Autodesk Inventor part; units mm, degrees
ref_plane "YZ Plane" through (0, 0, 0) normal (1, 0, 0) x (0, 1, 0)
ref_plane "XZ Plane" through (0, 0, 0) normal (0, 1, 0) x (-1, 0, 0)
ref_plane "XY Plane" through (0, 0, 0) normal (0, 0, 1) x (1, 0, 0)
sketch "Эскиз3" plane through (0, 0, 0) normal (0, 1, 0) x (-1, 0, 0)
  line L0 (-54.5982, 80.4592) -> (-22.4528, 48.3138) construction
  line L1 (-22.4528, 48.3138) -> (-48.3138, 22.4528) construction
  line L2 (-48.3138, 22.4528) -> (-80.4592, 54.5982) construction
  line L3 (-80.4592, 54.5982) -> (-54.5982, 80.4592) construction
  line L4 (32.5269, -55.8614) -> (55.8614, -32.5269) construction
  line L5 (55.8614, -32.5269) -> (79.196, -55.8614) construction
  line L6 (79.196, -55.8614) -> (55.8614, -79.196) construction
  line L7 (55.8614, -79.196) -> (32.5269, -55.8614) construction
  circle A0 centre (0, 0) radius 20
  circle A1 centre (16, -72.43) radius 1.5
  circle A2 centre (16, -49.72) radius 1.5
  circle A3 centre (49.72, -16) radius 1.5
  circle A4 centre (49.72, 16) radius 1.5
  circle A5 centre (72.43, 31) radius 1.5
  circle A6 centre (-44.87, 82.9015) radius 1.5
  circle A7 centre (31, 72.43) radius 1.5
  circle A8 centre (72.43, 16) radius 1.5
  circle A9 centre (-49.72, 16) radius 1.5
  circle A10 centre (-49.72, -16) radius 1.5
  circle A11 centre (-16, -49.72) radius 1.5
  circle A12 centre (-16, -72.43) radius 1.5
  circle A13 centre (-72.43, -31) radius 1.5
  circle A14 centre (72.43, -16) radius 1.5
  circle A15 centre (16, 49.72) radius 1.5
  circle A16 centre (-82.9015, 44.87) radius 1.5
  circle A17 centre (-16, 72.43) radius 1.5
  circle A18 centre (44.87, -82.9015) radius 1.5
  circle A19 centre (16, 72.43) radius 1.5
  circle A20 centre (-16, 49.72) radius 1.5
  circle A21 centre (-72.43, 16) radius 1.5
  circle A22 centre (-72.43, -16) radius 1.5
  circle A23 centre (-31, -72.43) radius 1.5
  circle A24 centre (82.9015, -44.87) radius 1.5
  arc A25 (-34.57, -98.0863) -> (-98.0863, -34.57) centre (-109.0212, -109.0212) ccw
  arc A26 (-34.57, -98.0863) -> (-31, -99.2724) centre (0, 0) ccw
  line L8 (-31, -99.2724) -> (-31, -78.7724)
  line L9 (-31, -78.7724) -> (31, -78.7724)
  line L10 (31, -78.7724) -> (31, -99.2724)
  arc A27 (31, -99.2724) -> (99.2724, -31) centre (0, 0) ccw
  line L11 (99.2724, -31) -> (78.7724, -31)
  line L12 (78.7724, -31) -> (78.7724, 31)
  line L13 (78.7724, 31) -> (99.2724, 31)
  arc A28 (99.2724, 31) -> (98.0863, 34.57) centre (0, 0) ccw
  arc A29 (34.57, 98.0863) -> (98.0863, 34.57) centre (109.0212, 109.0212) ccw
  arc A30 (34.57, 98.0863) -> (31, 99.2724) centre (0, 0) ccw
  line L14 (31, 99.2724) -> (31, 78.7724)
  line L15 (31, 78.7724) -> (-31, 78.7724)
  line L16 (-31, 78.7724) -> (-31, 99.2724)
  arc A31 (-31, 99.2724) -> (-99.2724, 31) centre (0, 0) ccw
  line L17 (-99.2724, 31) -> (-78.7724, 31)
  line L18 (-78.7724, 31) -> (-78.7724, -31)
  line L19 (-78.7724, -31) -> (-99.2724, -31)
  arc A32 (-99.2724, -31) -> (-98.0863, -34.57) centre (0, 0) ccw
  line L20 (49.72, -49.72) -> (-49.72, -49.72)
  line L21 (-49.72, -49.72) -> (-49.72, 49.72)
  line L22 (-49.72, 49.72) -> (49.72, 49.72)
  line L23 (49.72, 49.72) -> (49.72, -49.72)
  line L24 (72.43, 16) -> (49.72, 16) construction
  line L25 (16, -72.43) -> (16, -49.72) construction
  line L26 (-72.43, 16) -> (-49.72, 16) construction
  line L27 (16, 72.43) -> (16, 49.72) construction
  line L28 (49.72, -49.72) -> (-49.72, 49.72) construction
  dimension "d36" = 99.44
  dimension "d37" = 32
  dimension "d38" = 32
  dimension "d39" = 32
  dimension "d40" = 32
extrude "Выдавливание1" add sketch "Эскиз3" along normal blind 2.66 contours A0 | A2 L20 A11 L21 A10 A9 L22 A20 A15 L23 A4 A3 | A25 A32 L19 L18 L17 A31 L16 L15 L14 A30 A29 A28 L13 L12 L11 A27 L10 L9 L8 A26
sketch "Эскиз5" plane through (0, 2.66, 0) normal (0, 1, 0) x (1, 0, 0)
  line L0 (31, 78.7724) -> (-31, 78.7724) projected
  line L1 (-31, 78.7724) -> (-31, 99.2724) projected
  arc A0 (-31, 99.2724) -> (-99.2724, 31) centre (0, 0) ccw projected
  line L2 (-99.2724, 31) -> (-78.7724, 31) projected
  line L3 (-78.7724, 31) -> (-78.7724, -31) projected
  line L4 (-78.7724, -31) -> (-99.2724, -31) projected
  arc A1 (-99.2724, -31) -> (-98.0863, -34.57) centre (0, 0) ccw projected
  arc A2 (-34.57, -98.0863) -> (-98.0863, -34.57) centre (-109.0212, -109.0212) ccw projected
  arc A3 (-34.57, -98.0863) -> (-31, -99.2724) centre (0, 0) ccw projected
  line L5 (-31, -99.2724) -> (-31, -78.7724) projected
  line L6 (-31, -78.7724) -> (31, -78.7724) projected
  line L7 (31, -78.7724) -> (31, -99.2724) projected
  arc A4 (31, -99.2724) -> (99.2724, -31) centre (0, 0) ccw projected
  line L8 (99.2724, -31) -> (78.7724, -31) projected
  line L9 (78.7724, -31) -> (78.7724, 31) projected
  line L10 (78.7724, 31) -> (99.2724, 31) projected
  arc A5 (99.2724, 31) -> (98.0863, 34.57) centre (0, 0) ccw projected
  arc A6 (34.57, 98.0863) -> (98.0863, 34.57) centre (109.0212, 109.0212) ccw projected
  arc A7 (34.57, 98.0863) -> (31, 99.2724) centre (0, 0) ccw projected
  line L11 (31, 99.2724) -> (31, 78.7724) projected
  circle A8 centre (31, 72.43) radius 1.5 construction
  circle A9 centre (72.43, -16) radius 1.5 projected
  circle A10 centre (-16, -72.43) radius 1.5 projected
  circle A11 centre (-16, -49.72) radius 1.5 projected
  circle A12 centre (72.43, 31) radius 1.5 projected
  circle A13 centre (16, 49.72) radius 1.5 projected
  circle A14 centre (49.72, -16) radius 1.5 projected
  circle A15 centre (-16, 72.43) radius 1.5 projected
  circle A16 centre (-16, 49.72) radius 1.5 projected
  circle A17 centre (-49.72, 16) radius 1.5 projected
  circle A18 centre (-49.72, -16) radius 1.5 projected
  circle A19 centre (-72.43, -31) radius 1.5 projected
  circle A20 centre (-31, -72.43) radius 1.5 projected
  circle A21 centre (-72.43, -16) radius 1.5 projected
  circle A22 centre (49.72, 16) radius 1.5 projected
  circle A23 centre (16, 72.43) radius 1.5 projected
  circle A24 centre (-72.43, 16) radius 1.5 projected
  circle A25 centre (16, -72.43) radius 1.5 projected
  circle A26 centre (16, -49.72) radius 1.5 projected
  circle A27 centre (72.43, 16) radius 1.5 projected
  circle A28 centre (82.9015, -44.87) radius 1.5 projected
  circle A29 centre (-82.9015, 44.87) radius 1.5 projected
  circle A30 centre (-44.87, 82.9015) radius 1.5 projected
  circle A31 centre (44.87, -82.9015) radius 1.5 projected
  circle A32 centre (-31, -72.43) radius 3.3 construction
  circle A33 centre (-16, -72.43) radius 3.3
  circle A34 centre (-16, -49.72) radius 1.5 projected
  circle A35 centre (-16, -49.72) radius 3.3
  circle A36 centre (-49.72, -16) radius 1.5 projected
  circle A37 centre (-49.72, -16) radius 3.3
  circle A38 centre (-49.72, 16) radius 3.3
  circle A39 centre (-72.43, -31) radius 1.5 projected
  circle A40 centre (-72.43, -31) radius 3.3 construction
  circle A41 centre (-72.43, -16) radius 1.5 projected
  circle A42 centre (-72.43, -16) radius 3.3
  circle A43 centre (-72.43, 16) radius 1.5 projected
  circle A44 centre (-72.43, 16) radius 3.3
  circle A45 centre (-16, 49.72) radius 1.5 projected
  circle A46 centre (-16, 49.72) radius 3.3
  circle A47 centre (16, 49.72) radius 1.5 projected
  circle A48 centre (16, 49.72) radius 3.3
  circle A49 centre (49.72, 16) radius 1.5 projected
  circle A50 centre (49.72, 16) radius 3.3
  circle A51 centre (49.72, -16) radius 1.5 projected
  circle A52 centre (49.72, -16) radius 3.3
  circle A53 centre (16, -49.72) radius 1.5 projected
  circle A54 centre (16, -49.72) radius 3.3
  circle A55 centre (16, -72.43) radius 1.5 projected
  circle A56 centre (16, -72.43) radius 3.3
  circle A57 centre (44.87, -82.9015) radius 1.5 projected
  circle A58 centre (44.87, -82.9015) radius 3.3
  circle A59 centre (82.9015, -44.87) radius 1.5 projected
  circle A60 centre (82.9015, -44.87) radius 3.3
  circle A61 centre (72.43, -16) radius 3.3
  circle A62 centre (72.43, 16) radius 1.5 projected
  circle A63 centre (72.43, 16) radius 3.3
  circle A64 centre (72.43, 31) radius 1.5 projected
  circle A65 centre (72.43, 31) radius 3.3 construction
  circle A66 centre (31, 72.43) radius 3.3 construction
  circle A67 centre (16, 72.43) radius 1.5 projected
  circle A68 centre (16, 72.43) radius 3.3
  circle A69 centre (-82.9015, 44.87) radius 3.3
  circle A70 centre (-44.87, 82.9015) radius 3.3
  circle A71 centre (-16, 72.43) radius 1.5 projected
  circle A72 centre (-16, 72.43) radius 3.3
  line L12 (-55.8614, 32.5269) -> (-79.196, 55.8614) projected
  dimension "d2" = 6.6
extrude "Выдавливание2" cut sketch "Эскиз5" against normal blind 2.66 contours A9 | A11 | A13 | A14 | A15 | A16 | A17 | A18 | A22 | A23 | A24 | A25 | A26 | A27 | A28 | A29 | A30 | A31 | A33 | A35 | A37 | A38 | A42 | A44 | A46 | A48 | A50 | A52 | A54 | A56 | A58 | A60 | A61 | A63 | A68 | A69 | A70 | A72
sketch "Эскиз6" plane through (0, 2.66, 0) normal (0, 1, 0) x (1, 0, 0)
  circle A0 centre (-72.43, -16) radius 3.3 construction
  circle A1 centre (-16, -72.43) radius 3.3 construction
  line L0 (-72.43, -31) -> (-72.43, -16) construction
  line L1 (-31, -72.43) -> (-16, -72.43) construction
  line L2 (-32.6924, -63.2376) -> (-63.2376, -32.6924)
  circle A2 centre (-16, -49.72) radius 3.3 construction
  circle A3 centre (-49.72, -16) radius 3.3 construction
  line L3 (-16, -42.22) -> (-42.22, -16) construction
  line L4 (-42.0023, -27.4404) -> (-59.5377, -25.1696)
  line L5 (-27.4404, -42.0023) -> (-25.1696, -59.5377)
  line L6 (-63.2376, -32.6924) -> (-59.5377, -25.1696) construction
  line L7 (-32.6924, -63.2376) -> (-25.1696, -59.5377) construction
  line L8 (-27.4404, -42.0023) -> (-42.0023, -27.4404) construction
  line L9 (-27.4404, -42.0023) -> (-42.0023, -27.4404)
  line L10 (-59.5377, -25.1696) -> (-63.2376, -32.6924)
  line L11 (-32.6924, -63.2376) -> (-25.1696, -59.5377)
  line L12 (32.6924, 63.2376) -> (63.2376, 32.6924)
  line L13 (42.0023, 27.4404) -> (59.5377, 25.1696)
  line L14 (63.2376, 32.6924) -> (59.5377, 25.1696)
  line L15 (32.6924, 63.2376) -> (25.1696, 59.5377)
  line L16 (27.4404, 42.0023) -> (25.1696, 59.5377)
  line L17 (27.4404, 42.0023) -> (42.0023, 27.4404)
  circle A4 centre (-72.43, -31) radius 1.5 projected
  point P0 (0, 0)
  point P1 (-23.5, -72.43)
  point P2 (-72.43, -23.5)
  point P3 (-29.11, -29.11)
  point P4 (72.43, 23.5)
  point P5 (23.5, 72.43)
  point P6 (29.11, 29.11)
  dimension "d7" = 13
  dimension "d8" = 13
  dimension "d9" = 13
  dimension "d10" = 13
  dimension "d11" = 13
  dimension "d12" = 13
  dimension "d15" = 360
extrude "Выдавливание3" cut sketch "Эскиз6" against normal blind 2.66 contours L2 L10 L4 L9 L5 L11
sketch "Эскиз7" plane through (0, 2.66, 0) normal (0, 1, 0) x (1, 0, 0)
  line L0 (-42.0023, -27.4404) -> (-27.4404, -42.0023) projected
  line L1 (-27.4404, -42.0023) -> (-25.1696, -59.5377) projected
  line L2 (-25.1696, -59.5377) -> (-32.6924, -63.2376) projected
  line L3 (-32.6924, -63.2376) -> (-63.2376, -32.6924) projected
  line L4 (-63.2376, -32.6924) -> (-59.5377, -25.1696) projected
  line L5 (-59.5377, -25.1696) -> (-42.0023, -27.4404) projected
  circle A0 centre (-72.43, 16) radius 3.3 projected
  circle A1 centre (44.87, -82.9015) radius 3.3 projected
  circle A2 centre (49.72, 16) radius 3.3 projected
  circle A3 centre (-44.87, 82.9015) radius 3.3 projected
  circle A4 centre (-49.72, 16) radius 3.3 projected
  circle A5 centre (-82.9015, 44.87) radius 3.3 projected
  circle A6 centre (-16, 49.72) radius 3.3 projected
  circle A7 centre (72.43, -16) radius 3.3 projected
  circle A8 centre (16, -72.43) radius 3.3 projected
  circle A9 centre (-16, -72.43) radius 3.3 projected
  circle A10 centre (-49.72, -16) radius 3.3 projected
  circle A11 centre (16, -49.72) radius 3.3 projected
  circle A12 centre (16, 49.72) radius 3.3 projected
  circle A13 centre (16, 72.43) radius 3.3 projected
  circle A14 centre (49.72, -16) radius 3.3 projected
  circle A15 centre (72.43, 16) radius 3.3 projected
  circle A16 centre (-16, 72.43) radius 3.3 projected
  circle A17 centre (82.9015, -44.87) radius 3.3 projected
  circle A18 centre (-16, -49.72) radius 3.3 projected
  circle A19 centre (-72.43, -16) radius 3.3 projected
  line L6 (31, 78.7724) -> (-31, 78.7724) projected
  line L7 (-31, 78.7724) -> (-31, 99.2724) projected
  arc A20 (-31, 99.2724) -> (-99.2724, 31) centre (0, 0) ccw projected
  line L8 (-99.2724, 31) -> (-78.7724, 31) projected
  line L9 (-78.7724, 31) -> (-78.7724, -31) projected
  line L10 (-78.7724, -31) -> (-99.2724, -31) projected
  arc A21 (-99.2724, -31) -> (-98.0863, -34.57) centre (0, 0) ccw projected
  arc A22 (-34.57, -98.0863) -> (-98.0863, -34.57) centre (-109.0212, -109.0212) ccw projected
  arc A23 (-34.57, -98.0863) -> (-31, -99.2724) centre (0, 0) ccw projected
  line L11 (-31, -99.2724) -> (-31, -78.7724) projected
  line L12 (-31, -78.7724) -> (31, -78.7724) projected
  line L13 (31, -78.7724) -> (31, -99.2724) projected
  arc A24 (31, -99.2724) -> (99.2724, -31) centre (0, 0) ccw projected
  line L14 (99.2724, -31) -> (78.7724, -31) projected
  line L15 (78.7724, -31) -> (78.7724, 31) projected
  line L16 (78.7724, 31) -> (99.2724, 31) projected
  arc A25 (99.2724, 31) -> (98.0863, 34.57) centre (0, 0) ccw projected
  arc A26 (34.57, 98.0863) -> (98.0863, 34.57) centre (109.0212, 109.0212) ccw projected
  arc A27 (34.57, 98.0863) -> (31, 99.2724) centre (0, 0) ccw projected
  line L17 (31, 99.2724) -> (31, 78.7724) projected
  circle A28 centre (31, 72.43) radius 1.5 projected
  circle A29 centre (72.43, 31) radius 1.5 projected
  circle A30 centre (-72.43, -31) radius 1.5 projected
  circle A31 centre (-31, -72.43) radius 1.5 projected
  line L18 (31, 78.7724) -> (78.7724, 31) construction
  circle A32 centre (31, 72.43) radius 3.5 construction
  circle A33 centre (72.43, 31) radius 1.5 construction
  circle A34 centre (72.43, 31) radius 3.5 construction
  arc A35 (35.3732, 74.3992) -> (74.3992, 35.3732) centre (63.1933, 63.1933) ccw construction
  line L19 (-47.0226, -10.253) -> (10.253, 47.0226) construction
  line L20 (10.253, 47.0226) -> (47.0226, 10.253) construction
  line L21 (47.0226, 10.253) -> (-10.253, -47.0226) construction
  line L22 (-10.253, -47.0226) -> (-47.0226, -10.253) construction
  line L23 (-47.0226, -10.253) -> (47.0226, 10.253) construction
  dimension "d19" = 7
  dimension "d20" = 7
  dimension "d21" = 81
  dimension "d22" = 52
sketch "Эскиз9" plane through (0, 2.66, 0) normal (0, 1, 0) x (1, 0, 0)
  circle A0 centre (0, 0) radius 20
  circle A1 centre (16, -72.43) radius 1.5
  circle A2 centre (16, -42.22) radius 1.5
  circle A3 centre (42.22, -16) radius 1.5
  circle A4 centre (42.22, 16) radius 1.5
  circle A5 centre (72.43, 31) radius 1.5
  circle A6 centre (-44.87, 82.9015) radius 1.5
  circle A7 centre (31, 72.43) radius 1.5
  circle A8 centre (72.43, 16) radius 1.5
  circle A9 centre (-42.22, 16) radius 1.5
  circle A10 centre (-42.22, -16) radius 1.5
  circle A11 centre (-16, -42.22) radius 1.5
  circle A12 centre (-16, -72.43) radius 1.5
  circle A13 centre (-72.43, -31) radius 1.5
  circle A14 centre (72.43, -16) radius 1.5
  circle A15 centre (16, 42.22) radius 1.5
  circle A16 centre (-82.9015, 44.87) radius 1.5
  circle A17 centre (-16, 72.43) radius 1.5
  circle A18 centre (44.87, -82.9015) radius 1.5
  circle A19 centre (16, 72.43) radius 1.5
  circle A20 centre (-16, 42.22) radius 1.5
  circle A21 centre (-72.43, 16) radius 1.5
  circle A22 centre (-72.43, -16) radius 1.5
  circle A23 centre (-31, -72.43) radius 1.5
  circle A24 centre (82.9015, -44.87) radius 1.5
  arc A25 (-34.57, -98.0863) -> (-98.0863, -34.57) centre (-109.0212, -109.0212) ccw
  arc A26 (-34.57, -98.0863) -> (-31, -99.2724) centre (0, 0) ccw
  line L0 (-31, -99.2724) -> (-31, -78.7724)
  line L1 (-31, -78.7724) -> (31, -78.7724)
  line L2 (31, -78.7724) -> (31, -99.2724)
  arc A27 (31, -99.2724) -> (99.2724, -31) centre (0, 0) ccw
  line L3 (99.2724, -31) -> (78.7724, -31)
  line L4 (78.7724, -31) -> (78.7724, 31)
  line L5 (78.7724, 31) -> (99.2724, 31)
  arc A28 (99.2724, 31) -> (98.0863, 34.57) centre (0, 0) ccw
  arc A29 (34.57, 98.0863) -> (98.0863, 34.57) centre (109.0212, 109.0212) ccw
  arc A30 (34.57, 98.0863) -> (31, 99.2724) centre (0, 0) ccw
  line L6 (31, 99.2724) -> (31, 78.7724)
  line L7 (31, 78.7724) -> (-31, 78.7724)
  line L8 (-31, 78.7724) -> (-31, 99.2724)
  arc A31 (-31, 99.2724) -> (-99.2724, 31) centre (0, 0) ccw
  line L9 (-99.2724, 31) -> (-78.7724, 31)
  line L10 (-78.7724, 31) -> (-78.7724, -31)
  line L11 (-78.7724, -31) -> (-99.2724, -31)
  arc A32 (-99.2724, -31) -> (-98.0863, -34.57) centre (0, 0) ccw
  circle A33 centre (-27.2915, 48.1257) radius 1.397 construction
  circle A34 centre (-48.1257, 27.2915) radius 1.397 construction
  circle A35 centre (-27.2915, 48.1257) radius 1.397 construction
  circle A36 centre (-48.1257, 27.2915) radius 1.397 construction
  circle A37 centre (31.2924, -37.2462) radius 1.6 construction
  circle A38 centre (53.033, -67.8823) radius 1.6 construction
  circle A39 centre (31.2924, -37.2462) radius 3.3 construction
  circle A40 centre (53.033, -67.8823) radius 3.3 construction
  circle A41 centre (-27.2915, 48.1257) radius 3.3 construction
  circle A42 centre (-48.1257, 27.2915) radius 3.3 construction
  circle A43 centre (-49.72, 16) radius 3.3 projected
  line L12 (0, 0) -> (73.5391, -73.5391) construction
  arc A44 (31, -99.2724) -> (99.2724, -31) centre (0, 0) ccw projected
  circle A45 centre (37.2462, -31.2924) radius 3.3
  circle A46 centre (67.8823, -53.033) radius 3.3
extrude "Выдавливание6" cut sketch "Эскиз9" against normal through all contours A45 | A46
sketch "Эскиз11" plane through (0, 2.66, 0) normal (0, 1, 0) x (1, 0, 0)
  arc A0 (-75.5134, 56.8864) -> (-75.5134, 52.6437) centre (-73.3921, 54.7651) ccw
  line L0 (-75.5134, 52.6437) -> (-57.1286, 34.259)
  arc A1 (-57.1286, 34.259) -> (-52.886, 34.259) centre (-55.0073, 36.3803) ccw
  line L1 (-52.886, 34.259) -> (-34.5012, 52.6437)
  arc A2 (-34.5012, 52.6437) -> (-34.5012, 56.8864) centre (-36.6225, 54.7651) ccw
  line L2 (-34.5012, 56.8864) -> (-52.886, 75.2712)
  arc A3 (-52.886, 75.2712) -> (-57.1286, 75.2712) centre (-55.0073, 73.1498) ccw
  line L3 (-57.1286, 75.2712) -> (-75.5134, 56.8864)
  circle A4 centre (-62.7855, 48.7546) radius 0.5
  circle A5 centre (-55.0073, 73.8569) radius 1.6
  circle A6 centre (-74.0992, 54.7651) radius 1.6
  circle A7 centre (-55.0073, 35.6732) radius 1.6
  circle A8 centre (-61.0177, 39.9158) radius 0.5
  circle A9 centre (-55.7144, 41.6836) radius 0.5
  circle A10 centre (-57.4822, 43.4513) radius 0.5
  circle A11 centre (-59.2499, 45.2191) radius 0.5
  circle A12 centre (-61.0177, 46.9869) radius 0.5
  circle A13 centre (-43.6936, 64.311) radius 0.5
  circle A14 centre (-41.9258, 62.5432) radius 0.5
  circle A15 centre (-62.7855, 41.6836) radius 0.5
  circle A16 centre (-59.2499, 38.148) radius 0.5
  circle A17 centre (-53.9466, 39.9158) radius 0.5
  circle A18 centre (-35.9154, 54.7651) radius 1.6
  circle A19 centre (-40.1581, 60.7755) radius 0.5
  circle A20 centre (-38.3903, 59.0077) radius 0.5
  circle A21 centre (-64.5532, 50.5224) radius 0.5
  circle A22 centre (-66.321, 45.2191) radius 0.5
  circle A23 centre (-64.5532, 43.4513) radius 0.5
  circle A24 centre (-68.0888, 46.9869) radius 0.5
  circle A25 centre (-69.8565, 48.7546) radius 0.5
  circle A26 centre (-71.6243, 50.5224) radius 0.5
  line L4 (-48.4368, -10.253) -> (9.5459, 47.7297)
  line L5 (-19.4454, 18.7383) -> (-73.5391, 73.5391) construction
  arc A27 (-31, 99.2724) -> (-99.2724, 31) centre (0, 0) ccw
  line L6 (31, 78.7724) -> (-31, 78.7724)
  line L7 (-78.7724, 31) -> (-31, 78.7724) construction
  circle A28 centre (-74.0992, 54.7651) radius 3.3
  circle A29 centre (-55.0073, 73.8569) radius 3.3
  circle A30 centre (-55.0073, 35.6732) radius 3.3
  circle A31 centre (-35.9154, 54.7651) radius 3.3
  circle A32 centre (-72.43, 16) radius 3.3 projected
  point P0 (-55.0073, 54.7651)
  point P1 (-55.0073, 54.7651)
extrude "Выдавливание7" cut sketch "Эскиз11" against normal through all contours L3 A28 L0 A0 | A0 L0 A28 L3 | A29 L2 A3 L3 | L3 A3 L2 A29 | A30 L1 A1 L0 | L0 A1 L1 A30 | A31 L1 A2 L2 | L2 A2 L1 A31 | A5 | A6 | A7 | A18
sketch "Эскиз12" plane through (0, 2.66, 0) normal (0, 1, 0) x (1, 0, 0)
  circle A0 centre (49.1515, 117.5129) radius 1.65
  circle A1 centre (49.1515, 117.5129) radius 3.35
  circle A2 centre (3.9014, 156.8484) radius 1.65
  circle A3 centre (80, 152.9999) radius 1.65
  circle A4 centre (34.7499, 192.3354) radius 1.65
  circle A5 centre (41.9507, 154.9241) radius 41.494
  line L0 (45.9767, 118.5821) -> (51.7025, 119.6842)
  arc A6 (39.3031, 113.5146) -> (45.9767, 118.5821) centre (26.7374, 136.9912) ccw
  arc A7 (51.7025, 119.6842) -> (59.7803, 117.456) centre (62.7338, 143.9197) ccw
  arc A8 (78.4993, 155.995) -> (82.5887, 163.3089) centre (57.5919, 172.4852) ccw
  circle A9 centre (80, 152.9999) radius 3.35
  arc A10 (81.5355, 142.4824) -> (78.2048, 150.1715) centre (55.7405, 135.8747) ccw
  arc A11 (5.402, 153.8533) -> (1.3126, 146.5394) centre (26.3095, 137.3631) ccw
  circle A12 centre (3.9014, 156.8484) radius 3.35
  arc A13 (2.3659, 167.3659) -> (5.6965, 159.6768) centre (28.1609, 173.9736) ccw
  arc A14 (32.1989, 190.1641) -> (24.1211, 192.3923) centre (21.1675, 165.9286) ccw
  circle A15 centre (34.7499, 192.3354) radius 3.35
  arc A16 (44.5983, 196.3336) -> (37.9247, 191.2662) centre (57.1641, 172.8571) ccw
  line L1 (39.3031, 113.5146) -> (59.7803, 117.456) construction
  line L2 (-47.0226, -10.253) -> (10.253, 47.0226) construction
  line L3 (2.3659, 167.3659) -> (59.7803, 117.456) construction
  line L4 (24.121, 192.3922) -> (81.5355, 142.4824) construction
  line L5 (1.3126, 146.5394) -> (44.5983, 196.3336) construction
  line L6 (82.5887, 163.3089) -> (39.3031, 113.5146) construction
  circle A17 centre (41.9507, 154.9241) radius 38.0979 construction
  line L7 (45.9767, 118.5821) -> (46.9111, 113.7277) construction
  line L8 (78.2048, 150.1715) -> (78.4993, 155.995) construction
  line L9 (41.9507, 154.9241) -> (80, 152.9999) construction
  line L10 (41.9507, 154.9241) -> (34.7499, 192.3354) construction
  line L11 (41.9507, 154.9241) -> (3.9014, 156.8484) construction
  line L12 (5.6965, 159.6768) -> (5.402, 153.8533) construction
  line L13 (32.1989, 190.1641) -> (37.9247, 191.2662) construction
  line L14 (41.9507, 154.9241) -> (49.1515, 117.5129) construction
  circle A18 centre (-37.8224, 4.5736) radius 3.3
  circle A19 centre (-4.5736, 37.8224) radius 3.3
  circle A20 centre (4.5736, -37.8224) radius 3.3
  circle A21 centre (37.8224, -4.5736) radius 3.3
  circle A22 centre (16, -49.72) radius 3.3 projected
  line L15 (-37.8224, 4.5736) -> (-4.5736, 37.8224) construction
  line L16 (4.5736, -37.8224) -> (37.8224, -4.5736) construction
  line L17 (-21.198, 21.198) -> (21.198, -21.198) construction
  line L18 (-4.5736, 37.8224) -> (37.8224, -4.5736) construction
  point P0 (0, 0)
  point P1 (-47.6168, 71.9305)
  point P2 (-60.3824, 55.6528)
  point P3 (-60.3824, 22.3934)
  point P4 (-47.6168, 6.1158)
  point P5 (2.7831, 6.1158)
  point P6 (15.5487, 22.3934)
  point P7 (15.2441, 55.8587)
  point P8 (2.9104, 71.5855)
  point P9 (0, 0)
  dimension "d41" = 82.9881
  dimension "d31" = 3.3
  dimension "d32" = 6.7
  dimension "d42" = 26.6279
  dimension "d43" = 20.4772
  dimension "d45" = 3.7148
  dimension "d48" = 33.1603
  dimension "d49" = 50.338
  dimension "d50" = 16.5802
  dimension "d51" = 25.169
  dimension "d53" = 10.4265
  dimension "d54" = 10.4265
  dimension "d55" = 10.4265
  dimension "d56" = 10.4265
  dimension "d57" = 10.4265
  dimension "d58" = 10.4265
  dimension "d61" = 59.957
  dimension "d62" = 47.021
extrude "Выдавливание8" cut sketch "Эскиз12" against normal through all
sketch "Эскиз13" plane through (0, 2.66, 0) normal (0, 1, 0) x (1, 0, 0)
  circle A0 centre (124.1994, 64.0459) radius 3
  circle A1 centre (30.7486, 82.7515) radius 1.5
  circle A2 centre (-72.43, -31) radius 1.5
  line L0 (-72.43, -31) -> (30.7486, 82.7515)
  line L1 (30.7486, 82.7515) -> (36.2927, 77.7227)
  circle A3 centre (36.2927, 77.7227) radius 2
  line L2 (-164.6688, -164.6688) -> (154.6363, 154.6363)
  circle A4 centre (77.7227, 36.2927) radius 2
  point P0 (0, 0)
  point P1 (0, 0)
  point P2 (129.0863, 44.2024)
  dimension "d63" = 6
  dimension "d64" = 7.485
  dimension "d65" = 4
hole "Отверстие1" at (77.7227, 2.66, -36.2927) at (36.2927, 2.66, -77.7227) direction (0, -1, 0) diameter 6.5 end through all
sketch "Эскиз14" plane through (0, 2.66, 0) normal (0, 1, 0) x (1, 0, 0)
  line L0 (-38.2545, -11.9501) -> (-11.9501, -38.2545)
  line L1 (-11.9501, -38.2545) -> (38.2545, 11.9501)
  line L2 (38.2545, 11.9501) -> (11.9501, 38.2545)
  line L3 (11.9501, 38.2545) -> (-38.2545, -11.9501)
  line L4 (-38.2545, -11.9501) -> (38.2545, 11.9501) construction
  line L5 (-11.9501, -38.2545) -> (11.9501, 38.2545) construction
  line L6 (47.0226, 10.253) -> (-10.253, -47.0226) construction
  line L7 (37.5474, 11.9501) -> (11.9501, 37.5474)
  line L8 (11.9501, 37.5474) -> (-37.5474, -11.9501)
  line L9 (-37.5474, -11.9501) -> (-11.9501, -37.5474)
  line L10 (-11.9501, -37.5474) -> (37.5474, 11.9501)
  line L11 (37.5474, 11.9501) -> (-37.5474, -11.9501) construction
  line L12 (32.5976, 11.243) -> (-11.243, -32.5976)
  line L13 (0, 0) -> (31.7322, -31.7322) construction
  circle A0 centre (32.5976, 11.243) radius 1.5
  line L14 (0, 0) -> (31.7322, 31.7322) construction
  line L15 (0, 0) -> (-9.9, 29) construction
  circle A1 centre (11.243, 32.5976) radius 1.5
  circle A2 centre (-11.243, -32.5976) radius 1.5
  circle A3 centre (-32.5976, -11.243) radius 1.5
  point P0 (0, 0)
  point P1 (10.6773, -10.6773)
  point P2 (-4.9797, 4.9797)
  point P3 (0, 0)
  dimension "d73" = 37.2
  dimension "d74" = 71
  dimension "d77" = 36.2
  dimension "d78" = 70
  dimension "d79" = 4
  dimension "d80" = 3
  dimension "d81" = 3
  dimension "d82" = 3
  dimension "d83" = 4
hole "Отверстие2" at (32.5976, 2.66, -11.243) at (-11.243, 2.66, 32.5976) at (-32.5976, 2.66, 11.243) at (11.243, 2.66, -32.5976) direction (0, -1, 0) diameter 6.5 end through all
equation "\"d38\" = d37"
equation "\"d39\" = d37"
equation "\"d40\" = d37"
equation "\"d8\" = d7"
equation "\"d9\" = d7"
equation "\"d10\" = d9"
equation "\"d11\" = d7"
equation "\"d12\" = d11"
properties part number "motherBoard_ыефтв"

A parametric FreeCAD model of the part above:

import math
import FreeCAD as App
import Part
import Sketcher
Q = App.Units.Quantity


def add_polygon(sketch, points):
    """Adds a closed chain of lines whose ends are joined by coincident constraints."""
    first, n = sketch.GeometryCount, len(points)
    for a, b in zip(points, points[1:] + points[:1]):
        sketch.addGeometry(Part.LineSegment(App.Vector(*a, 0), App.Vector(*b, 0)), False)
    for i in range(n):
        sketch.addConstraint(Sketcher.Constraint("Coincident", first + i, 2, first + (i + 1) % n, 1))

doc = App.newDocument("Part")
body = doc.addObject("PartDesign::Body", "Body")

# Sketch on XZ plane
sketch1 = body.newObject("Sketcher::SketchObject", "Sketch")
sketch1.AttachmentSupport = (doc.getObject("XZ_Plane"), [""])
sketch1.MapMode = "FlatFace"
sketch1.addGeometry(Part.ArcOfCircle(Part.Circle(App.Vector(109.0212, -109.0212, 0), App.Vector(0, 0, 1), 75.249938), math.radians(98.355486), math.radians(171.644514)), False)
sketch1.addGeometry(Part.ArcOfCircle(Part.Circle(App.Vector(-0.010732, 0.031353, 0), App.Vector(0, 0, 1), 104.033172), math.radians(-72.657377), math.radians(-70.585427)), False)
sketch1.addGeometry(Part.LineSegment(App.Vector(31, -99.2724, 0), App.Vector(31, -78.7724, 0)), False)
sketch1.addGeometry(Part.LineSegment(App.Vector(31, -78.7724, 0), App.Vector(-31, -78.7724, 0)), False)
sketch1.addGeometry(Part.LineSegment(App.Vector(-31, -78.7724, 0), App.Vector(-31, -99.2724, 0)), False)
sketch1.addGeometry(Part.ArcOfCircle(Part.Circle(App.Vector(0, 0, 0), App.Vector(0, 0, 1), 104.000045), math.radians(-162.657873), math.radians(-107.342127)), False)
sketch1.addGeometry(Part.LineSegment(App.Vector(-99.2724, -31, 0), App.Vector(-78.7724, -31, 0)), False)
sketch1.addGeometry(Part.LineSegment(App.Vector(-78.7724, -31, 0), App.Vector(-78.7724, 31, 0)), False)
sketch1.addGeometry(Part.LineSegment(App.Vector(-78.7724, 31, 0), App.Vector(-99.2724, 31, 0)), False)
sketch1.addGeometry(Part.ArcOfCircle(Part.Circle(App.Vector(-0.031522, 0.010157, 0), App.Vector(0, 0, 1), 103.966928), math.radians(160.584767), math.radians(162.658038)), False)
sketch1.addGeometry(Part.ArcOfCircle(Part.Circle(App.Vector(-109.0212, 109.0212, 0), App.Vector(0, 0, 1), 75.249938), math.radians(-81.644514), math.radians(-8.355486)), False)
sketch1.addGeometry(Part.ArcOfCircle(Part.Circle(App.Vector(0.010732, -0.031353, 0), App.Vector(0, 0, 1), 104.033172), math.radians(107.342623), math.radians(109.414573)), False)
sketch1.addGeometry(Part.LineSegment(App.Vector(-31, 99.2724, 0), App.Vector(-31, 78.7724, 0)), False)
sketch1.addGeometry(Part.LineSegment(App.Vector(-31, 78.7724, 0), App.Vector(31, 78.7724, 0)), False)
sketch1.addGeometry(Part.LineSegment(App.Vector(31, 78.7724, 0), App.Vector(31, 99.2724, 0)), False)
sketch1.addGeometry(Part.ArcOfCircle(Part.Circle(App.Vector(0, 0, 0), App.Vector(0, 0, 1), 104.000045), math.radians(17.342127), math.radians(72.657873)), False)
sketch1.addGeometry(Part.LineSegment(App.Vector(99.2724, 31, 0), App.Vector(78.7724, 31, 0)), False)
sketch1.addGeometry(Part.LineSegment(App.Vector(78.7724, 31, 0), App.Vector(78.7724, -31, 0)), False)
sketch1.addGeometry(Part.LineSegment(App.Vector(78.7724, -31, 0), App.Vector(99.2724, -31, 0)), False)
sketch1.addGeometry(Part.ArcOfCircle(Part.Circle(App.Vector(0.031522, -0.010157, 0), App.Vector(0, 0, 1), 103.966928), math.radians(-19.415233), math.radians(-17.341962)), False)
sketch1.addGeometry(Part.Circle(App.Vector(-16, -49.72, 0), App.Vector(0, 0, 1), 1.5), False)
sketch1.addGeometry(Part.Circle(App.Vector(16, -49.72, 0), App.Vector(0, 0, 1), 1.5), False)
sketch1.addGeometry(Part.Circle(App.Vector(49.72, -16, 0), App.Vector(0, 0, 1), 1.5), False)
sketch1.addGeometry(Part.Circle(App.Vector(49.72, 16, 0), App.Vector(0, 0, 1), 1.5), False)
sketch1.addGeometry(Part.Circle(App.Vector(16, 49.72, 0), App.Vector(0, 0, 1), 1.5), False)
sketch1.addGeometry(Part.Circle(App.Vector(-16, 49.72, 0), App.Vector(0, 0, 1), 1.5), False)
sketch1.addGeometry(Part.Circle(App.Vector(-49.72, 16, 0), App.Vector(0, 0, 1), 1.5), False)
sketch1.addGeometry(Part.Circle(App.Vector(-49.72, -16, 0), App.Vector(0, 0, 1), 1.5), False)
sketch1.addGeometry(Part.Circle(App.Vector(31, -72.43, 0), App.Vector(0, 0, 1), 1.5), False)
sketch1.addGeometry(Part.Circle(App.Vector(16, -72.43, 0), App.Vector(0, 0, 1), 1.5), False)
sketch1.addGeometry(Part.Circle(App.Vector(72.43, -31, 0), App.Vector(0, 0, 1), 1.5), False)
sketch1.addGeometry(Part.Circle(App.Vector(72.43, -16, 0), App.Vector(0, 0, 1), 1.5), False)
sketch1.addGeometry(Part.Circle(App.Vector(-44.87, -82.9015, 0), App.Vector(0, 0, 1), 1.5), False)
sketch1.addGeometry(Part.Circle(App.Vector(-16, -72.43, 0), App.Vector(0, 0, 1), 1.5), False)
sketch1.addGeometry(Part.Circle(App.Vector(-82.9015, -44.87, 0), App.Vector(0, 0, 1), 1.5), False)
sketch1.addGeometry(Part.Circle(App.Vector(-72.43, -16, 0), App.Vector(0, 0, 1), 1.5), False)
sketch1.addGeometry(Part.Circle(App.Vector(72.43, 16, 0), App.Vector(0, 0, 1), 1.5), False)
sketch1.addGeometry(Part.Circle(App.Vector(82.9015, 44.87, 0), App.Vector(0, 0, 1), 1.5), False)
sketch1.addGeometry(Part.Circle(App.Vector(16, 72.43, 0), App.Vector(0, 0, 1), 1.5), False)
sketch1.addGeometry(Part.Circle(App.Vector(44.87, 82.9015, 0), App.Vector(0, 0, 1), 1.5), False)
sketch1.addGeometry(Part.Circle(App.Vector(-72.43, 16, 0), App.Vector(0, 0, 1), 1.5), False)
sketch1.addGeometry(Part.Circle(App.Vector(-72.43, 31, 0), App.Vector(0, 0, 1), 1.5), False)
sketch1.addGeometry(Part.Circle(App.Vector(-16, 72.43, 0), App.Vector(0, 0, 1), 1.5), False)
sketch1.addGeometry(Part.Circle(App.Vector(-31, 72.43, 0), App.Vector(0, 0, 1), 1.5), False)
sketch1.addConstraint(Sketcher.Constraint("Coincident", 0, 2, 1, 2))
sketch1.addConstraint(Sketcher.Constraint("Coincident", 1, 1, 2, 1))
sketch1.addConstraint(Sketcher.Constraint("Coincident", 2, 2, 3, 1))
sketch1.addConstraint(Sketcher.Constraint("Coincident", 3, 2, 4, 1))
sketch1.addConstraint(Sketcher.Constraint("Coincident", 4, 2, 5, 2))
sketch1.addConstraint(Sketcher.Constraint("Coincident", 5, 1, 6, 1))
sketch1.addConstraint(Sketcher.Constraint("Coincident", 6, 2, 7, 1))
sketch1.addConstraint(Sketcher.Constraint("Coincident", 7, 2, 8, 1))
sketch1.addConstraint(Sketcher.Constraint("Coincident", 8, 2, 9, 2))
sketch1.addConstraint(Sketcher.Constraint("Coincident", 9, 1, 10, 1))
sketch1.addConstraint(Sketcher.Constraint("Coincident", 10, 2, 11, 2))
sketch1.addConstraint(Sketcher.Constraint("Coincident", 11, 1, 12, 1))
sketch1.addConstraint(Sketcher.Constraint("Coincident", 12, 2, 13, 1))
sketch1.addConstraint(Sketcher.Constraint("Coincident", 13, 2, 14, 1))
sketch1.addConstraint(Sketcher.Constraint("Coincident", 14, 2, 15, 2))
sketch1.addConstraint(Sketcher.Constraint("Coincident", 15, 1, 16, 1))
sketch1.addConstraint(Sketcher.Constraint("Coincident", 16, 2, 17, 1))
sketch1.addConstraint(Sketcher.Constraint("Coincident", 17, 2, 18, 1))
sketch1.addConstraint(Sketcher.Constraint("Coincident", 18, 2, 19, 2))
sketch1.addConstraint(Sketcher.Constraint("Coincident", 19, 1, 0, 1))
sketch1.addConstraint(Sketcher.Constraint("Vertical", 2))
sketch1.addConstraint(Sketcher.Constraint("Horizontal", 3))
sketch1.addConstraint(Sketcher.Constraint("Vertical", 4))
sketch1.addConstraint(Sketcher.Constraint("Horizontal", 6))
sketch1.addConstraint(Sketcher.Constraint("Vertical", 7))
sketch1.addConstraint(Sketcher.Constraint("Horizontal", 8))
sketch1.addConstraint(Sketcher.Constraint("Vertical", 12))
sketch1.addConstraint(Sketcher.Constraint("Horizontal", 13))
sketch1.addConstraint(Sketcher.Constraint("Vertical", 14))
sketch1.addConstraint(Sketcher.Constraint("Horizontal", 16))
sketch1.addConstraint(Sketcher.Constraint("Vertical", 17))
sketch1.addConstraint(Sketcher.Constraint("Horizontal", 18))
sketch1.addConstraint(Sketcher.Constraint("Coincident", 5, 3, -1, 1))
sketch1.addConstraint(Sketcher.Constraint("Coincident", 15, 3, -1, 1))
sketch1.addConstraint(Sketcher.Constraint("Equal", 0, 10))
sketch1.addConstraint(Sketcher.Constraint("Equal", 1, 11))
sketch1.addConstraint(Sketcher.Constraint("Equal", 5, 15))
sketch1.addConstraint(Sketcher.Constraint("Equal", 9, 19))
sketch1.addConstraint(Sketcher.Constraint("Equal", 20, 21))
sketch1.addConstraint(Sketcher.Constraint("Equal", 21, 22))
sketch1.addConstraint(Sketcher.Constraint("Equal", 22, 23))
sketch1.addConstraint(Sketcher.Constraint("Equal", 23, 24))
sketch1.addConstraint(Sketcher.Constraint("Equal", 24, 25))
sketch1.addConstraint(Sketcher.Constraint("Equal", 25, 26))
sketch1.addConstraint(Sketcher.Constraint("Equal", 26, 27))
sketch1.addConstraint(Sketcher.Constraint("Equal", 27, 28))
sketch1.addConstraint(Sketcher.Constraint("Equal", 28, 29))
sketch1.addConstraint(Sketcher.Constraint("Equal", 29, 30))
sketch1.addConstraint(Sketcher.Constraint("Equal", 30, 31))
sketch1.addConstraint(Sketcher.Constraint("Equal", 31, 32))
sketch1.addConstraint(Sketcher.Constraint("Equal", 32, 33))
sketch1.addConstraint(Sketcher.Constraint("Equal", 33, 34))
sketch1.addConstraint(Sketcher.Constraint("Equal", 34, 35))
sketch1.addConstraint(Sketcher.Constraint("Equal", 35, 36))
sketch1.addConstraint(Sketcher.Constraint("Equal", 36, 37))
sketch1.addConstraint(Sketcher.Constraint("Equal", 37, 38))
sketch1.addConstraint(Sketcher.Constraint("Equal", 38, 39))
sketch1.addConstraint(Sketcher.Constraint("Equal", 39, 40))
sketch1.addConstraint(Sketcher.Constraint("Equal", 40, 41))
sketch1.addConstraint(Sketcher.Constraint("Equal", 41, 42))
sketch1.addConstraint(Sketcher.Constraint("Equal", 42, 43))
sketch1.addConstraint(Sketcher.Constraint("Symmetric", 0, 3, 10, 3, -1, 1))
sketch1.addConstraint(Sketcher.Constraint("Symmetric", 1, 3, 11, 3, -1, 1))
sketch1.addConstraint(Sketcher.Constraint("Symmetric", 9, 3, 19, 3, -1, 1))
sketch1.addConstraint(Sketcher.Constraint("Symmetric", 20, 3, 24, 3, -1, 1))
sketch1.addConstraint(Sketcher.Constraint("Symmetric", 21, 3, 25, 3, -1, 1))
sketch1.addConstraint(Sketcher.Constraint("Symmetric", 22, 3, 26, 3, -1, 1))
sketch1.addConstraint(Sketcher.Constraint("Symmetric", 23, 3, 27, 3, -1, 1))
sketch1.addConstraint(Sketcher.Constraint("Symmetric", 35, 3, 36, 3, -1, 1))
sketch1.addConstraint(Sketcher.Constraint("Symmetric", 34, 3, 37, 3, -1, 1))
sketch1.addConstraint(Sketcher.Constraint("Symmetric", 33, 3, 38, 3, -1, 1))
sketch1.addConstraint(Sketcher.Constraint("Symmetric", 32, 3, 39, 3, -1, 1))
sketch1.addConstraint(Sketcher.Constraint("Symmetric", 31, 3, 40, 3, -1, 1))
sketch1.addConstraint(Sketcher.Constraint("Symmetric", 30, 3, 41, 3, -1, 1))
sketch1.addConstraint(Sketcher.Constraint("Symmetric", 29, 3, 42, 3, -1, 1))
sketch1.addConstraint(Sketcher.Constraint("Symmetric", 28, 3, 43, 3, -1, 1))
sketch1.addConstraint(Sketcher.Constraint("Symmetric", 2, 2, 12, 2, -1, 1))
sketch1.addConstraint(Sketcher.Constraint("Symmetric", 6, 2, 16, 2, -1, 1))
sketch1.addConstraint(Sketcher.Constraint("Symmetric", 20, 3, 21, 3, -2))
sketch1.addConstraint(Sketcher.Constraint("Symmetric", 23, 3, 26, 3, -2))
sketch1.addConstraint(Sketcher.Constraint("Symmetric", 29, 3, 33, 3, -2))
sketch1.addConstraint(Sketcher.Constraint("Symmetric", 31, 3, 35, 3, -2))
sketch1.addConstraint(Sketcher.Constraint("Symmetric", 1, 1, 4, 2, -2))
sketch1.addConstraint(Sketcher.Constraint("Symmetric", 8, 2, 15, 1, -2))
sketch1.addConstraint(Sketcher.Constraint("Horizontal", 28, 3, 29, 3))
sketch1.addConstraint(Sketcher.Constraint("Horizontal", 27, 3, 31, 3))
sketch1.addConstraint(Sketcher.Constraint("Horizontal", 30, 3, 5, 1))
sketch1.addConstraint(Sketcher.Constraint("Horizontal", 11, 1, 14, 2))
sketch1.addConstraint(Sketcher.Constraint("Horizontal", 6, 2, 17, 2))
sketch1.addConstraint(Sketcher.Constraint("Vertical", 24, 3, 29, 3))
sketch1.addConstraint(Sketcher.Constraint("Vertical", 30, 3, 31, 3))
sketch1.addConstraint(Sketcher.Constraint("Vertical", 28, 3, 1, 1))
sketch1.addConstraint(Sketcher.Constraint("Equal", 18, 2))
sketch1.addConstraint(Sketcher.Constraint("Equal", 13, 7))
sketch1.addConstraint(Sketcher.Constraint("Diameter", 20, 3.0))
sketch1.addConstraint(Sketcher.Constraint("Radius", 5, 104.0))
sketch1.addConstraint(Sketcher.Constraint("DistanceX", 20, 3, 21, 3, 32.0))
sketch1.addConstraint(Sketcher.Constraint("DistanceY", 22, 3, 23, 3, 32.0))
sketch1.addConstraint(Sketcher.Constraint("DistanceX", 3, 2, 3, 1, 62.0))
sketch1.addConstraint(Sketcher.Constraint("Radius", 0, 75.25))
sketch1.addConstraint(Sketcher.Constraint("DistanceX", 6, 1, 6, 2, 20.5))
sketch1.addConstraint(Sketcher.Constraint("Radius", 9, 103.967))
sketch1.addConstraint(Sketcher.Constraint("Radius", 1, 104.0332))
sketch1.addConstraint(Sketcher.Constraint("DistanceY", 20, 3, -1, 1, 49.72))
sketch1.addConstraint(Sketcher.Constraint("DistanceX", -1, 1, 22, 3, 49.72))
sketch1.addConstraint(Sketcher.Constraint("DistanceY", 28, 3, -1, 1, 72.43))
sketch1.addConstraint(Sketcher.Constraint("DistanceX", -1, 1, 30, 3, 72.43))
sketch1.addConstraint(Sketcher.Constraint("DistanceX", 32, 3, -1, 1, 44.87))
sketch1.addConstraint(Sketcher.Constraint("DistanceY", 34, 3, -1, 1, 44.87))
sketch1.addConstraint(Sketcher.Constraint("DistanceX", -1, 1, 0, 2, 34.57))
sketch1.addConstraint(Sketcher.Constraint("DistanceY", -1, 1, 9, 1, 34.57))
sketch1.addConstraint(Sketcher.Constraint("DistanceX", 1, 3, 0, 3, 109.032))
sketch1.addConstraint(Sketcher.Constraint("DistanceY", 9, 3, 10, 3, 109.011))
sketch1.addConstraint(Sketcher.Constraint("DistanceY", 32, 3, 3, 2, 4.129))
sketch1.addConstraint(Sketcher.Constraint("DistanceX", 5, 1, 34, 3, 16.371))
pad1 = body.newObject("PartDesign::Pad", "Pad")
pad1.Profile = sketch1
pad1.Length = 2.66
pad1.Reversed = True

# Sketch on XZ plane
sketch2 = body.newObject("Sketcher::SketchObject", "Sketch001")
sketch2.AttachmentSupport = (doc.getObject("XZ_Plane"), [""])
sketch2.MapMode = "FlatFace"
sketch2.AttachmentOffset = App.Placement(App.Vector(0, 0, -2.66), App.Rotation())
sketch2.addGeometry(Part.Circle(App.Vector(72.43, 16, 0), App.Vector(0, 0, 1), 3.3), False)
sketch2.addGeometry(Part.Circle(App.Vector(-16, 49.72, 0), App.Vector(0, 0, 1), 3.3), False)
sketch2.addGeometry(Part.Circle(App.Vector(16, -49.72, 0), App.Vector(0, 0, 1), 3.3), False)
sketch2.addGeometry(Part.Circle(App.Vector(49.72, 16, 0), App.Vector(0, 0, 1), 3.3), False)
sketch2.addGeometry(Part.Circle(App.Vector(-16, -72.43, 0), App.Vector(0, 0, 1), 3.3), False)
sketch2.addGeometry(Part.Circle(App.Vector(-16, -49.72, 0), App.Vector(0, 0, 1), 3.3), False)
sketch2.addGeometry(Part.Circle(App.Vector(-49.72, -16, 0), App.Vector(0, 0, 1), 3.3), False)
sketch2.addGeometry(Part.Circle(App.Vector(-49.72, 16, 0), App.Vector(0, 0, 1), 3.3), False)
sketch2.addGeometry(Part.Circle(App.Vector(49.72, -16, 0), App.Vector(0, 0, 1), 3.3), False)
sketch2.addGeometry(Part.Circle(App.Vector(16, -72.43, 0), App.Vector(0, 0, 1), 3.3), False)
sketch2.addGeometry(Part.Circle(App.Vector(-72.43, -16, 0), App.Vector(0, 0, 1), 3.3), False)
sketch2.addGeometry(Part.Circle(App.Vector(16, 72.43, 0), App.Vector(0, 0, 1), 3.3), False)
sketch2.addGeometry(Part.Circle(App.Vector(16, 49.72, 0), App.Vector(0, 0, 1), 3.3), False)
sketch2.addGeometry(Part.Circle(App.Vector(72.43, -16, 0), App.Vector(0, 0, 1), 3.3), False)
sketch2.addGeometry(Part.Circle(App.Vector(82.9015, 44.87, 0), App.Vector(0, 0, 1), 3.3), False)
sketch2.addGeometry(Part.Circle(App.Vector(-82.9015, -44.87, 0), App.Vector(0, 0, 1), 3.3), False)
sketch2.addGeometry(Part.Circle(App.Vector(-44.87, -82.9015, 0), App.Vector(0, 0, 1), 3.3), False)
sketch2.addGeometry(Part.Circle(App.Vector(44.87, 82.9015, 0), App.Vector(0, 0, 1), 3.3), False)
sketch2.addGeometry(Part.Circle(App.Vector(-16, 72.43, 0), App.Vector(0, 0, 1), 3.3), False)
sketch2.addGeometry(Part.Circle(App.Vector(-16, 72.43, 0), App.Vector(0, 0, 1), 1.5), False)
sketch2.addGeometry(Part.Circle(App.Vector(-72.43, 16, 0), App.Vector(0, 0, 1), 3.3), False)
sketch2.addGeometry(Part.Circle(App.Vector(-72.43, 16, 0), App.Vector(0, 0, 1), 1.5), False)
sketch2.addConstraint(Sketcher.Constraint("Coincident", 19, 3, 18, 3))
sketch2.addConstraint(Sketcher.Constraint("Coincident", 21, 3, 20, 3))
sketch2.addConstraint(Sketcher.Constraint("Equal", 0, 1))
sketch2.addConstraint(Sketcher.Constraint("Equal", 1, 2))
sketch2.addConstraint(Sketcher.Constraint("Equal", 2, 3))
sketch2.addConstraint(Sketcher.Constraint("Equal", 3, 4))
sketch2.addConstraint(Sketcher.Constraint("Equal", 4, 5))
sketch2.addConstraint(Sketcher.Constraint("Equal", 5, 6))
sketch2.addConstraint(Sketcher.Constraint("Equal", 6, 7))
sketch2.addConstraint(Sketcher.Constraint("Equal", 7, 8))
sketch2.addConstraint(Sketcher.Constraint("Equal", 8, 9))
sketch2.addConstraint(Sketcher.Constraint("Equal", 9, 10))
sketch2.addConstraint(Sketcher.Constraint("Equal", 10, 11))
sketch2.addConstraint(Sketcher.Constraint("Equal", 11, 12))
sketch2.addConstraint(Sketcher.Constraint("Equal", 12, 13))
sketch2.addConstraint(Sketcher.Constraint("Equal", 13, 14))
sketch2.addConstraint(Sketcher.Constraint("Equal", 14, 15))
sketch2.addConstraint(Sketcher.Constraint("Equal", 15, 16))
sketch2.addConstraint(Sketcher.Constraint("Equal", 16, 17))
sketch2.addConstraint(Sketcher.Constraint("Equal", 17, 18))
sketch2.addConstraint(Sketcher.Constraint("Equal", 18, 20))
sketch2.addConstraint(Sketcher.Constraint("Equal", 19, 21))
sketch2.addConstraint(Sketcher.Constraint("Symmetric", 1, 3, 2, 3, -1, 1))
sketch2.addConstraint(Sketcher.Constraint("Symmetric", 3, 3, 6, 3, -1, 1))
sketch2.addConstraint(Sketcher.Constraint("Symmetric", 7, 3, 8, 3, -1, 1))
sketch2.addConstraint(Sketcher.Constraint("Symmetric", 0, 3, 10, 3, -1, 1))
sketch2.addConstraint(Sketcher.Constraint("Symmetric", 4, 3, 11, 3, -1, 1))
sketch2.addConstraint(Sketcher.Constraint("Symmetric", 5, 3, 12, 3, -1, 1))
sketch2.addConstraint(Sketcher.Constraint("Symmetric", 14, 3, 15, 3, -1, 1))
sketch2.addConstraint(Sketcher.Constraint("Symmetric", 16, 3, 17, 3, -1, 1))
sketch2.addConstraint(Sketcher.Constraint("Symmetric", 9, 3, 18, 3, -1, 1))
sketch2.addConstraint(Sketcher.Constraint("Symmetric", 13, 3, 20, 3, -1, 1))
sketch2.addConstraint(Sketcher.Constraint("Symmetric", 2, 3, 5, 3, -2))
sketch2.addConstraint(Sketcher.Constraint("Symmetric", 3, 3, 7, 3, -2))
sketch2.addConstraint(Sketcher.Constraint("Symmetric", 4, 3, 9, 3, -2))
sketch2.addConstraint(Sketcher.Constraint("Symmetric", 10, 3, 13, 3, -2))
sketch2.addConstraint(Sketcher.Constraint("Horizontal", 0, 3, 3, 3))
sketch2.addConstraint(Sketcher.Constraint("Vertical", 1, 3, 4, 3))
sketch2.addConstraint(Sketcher.Constraint("Diameter", 0, 6.6))
sketch2.addConstraint(Sketcher.Constraint("Diameter", 19, 3.0))
sketch2.addConstraint(Sketcher.Constraint("DistanceY", -1, 1, 0, 3, 16.0))
sketch2.addConstraint(Sketcher.Constraint("DistanceX", 1, 3, -1, 1, 16.0))
sketch2.addConstraint(Sketcher.Constraint("DistanceX", -1, 1, 0, 3, 72.43))
sketch2.addConstraint(Sketcher.Constraint("DistanceY", -1, 1, 1, 3, 49.72))
sketch2.addConstraint(Sketcher.Constraint("DistanceX", -1, 1, 3, 3, 49.72))
sketch2.addConstraint(Sketcher.Constraint("DistanceY", 4, 3, -1, 1, 72.43))
sketch2.addConstraint(Sketcher.Constraint("DistanceY", -1, 1, 14, 3, 44.87))
sketch2.addConstraint(Sketcher.Constraint("DistanceX", 16, 3, -1, 1, 44.87))
sketch2.addConstraint(Sketcher.Constraint("DistanceX", -1, 1, 14, 3, 82.9015))
sketch2.addConstraint(Sketcher.Constraint("DistanceY", 16, 3, -1, 1, 82.9015))
pocket1 = body.newObject("PartDesign::Pocket", "Pocket")
pocket1.Profile = sketch2
pocket1.Length = 2.66
pocket1.Reversed = True

# Sketch on XZ plane
sketch3 = body.newObject("Sketcher::SketchObject", "Sketch002")
sketch3.AttachmentSupport = (doc.getObject("XZ_Plane"), [""])
sketch3.MapMode = "FlatFace"
sketch3.AttachmentOffset = App.Placement(App.Vector(0, 0, -2.66), App.Rotation())
add_polygon(sketch3, [(-63.2376, 32.6924), (-32.6924, 63.2376), (-25.1696, 59.5377), (-27.4404, 42.0023), (-42.0023, 27.4404), (-59.5377, 25.1696)])  # lines 0-5
sketch3.addConstraint(Sketcher.Constraint("Parallel", 0, 3))
sketch3.addConstraint(Sketcher.Constraint("Equal", 2, 4))
sketch3.addConstraint(Sketcher.Constraint("Equal", 1, 5))
sketch3.addConstraint(Sketcher.Constraint("Angle", 0, Q("45 deg")))
sketch3.addConstraint(Sketcher.Constraint("Angle", 1, Q("-26.189 deg")))
sketch3.addConstraint(Sketcher.Constraint("Angle", 5, Q("116.189 deg")))
sketch3.addConstraint(Sketcher.Constraint("DistanceY", 1, 2, 0, 2, 3.7))
sketch3.addConstraint(Sketcher.Constraint("DistanceX", 3, 2, 0, 2, 9.31))
sketch3.addConstraint(Sketcher.Constraint("DistanceX", 0, 2, 2, 2, 5.252))
sketch3.addConstraint(Sketcher.Constraint("DistanceY", 4, 2, 0, 2, 38.068))
sketch3.addConstraint(Sketcher.Constraint("DistanceX", 0, 2, -1, 1, 32.6924))
sketch3.addConstraint(Sketcher.Constraint("DistanceY", -1, 1, 0, 2, 63.2376))
pocket2 = body.newObject("PartDesign::Pocket", "Pocket001")
pocket2.Profile = sketch3
pocket2.Length = 2.66
pocket2.Reversed = True

# Sketch on XZ plane
sketch4 = body.newObject("Sketcher::SketchObject", "Sketch003")
sketch4.AttachmentSupport = (doc.getObject("XZ_Plane"), [""])
sketch4.MapMode = "FlatFace"
sketch4.AttachmentOffset = App.Placement(App.Vector(0, 0, -2.66), App.Rotation())
sketch4.addGeometry(Part.Circle(App.Vector(37.2462, 31.2924, 0), App.Vector(0, 0, 1), 3.3), False)
sketch4.addGeometry(Part.Circle(App.Vector(67.8823, 53.033, 0), App.Vector(0, 0, 1), 3.3), False)
sketch4.addConstraint(Sketcher.Constraint("Equal", 0, 1))
sketch4.addConstraint(Sketcher.Constraint("Diameter", 0, 6.6))
sketch4.addConstraint(Sketcher.Constraint("DistanceY", -1, 1, 1, 3, 53.033))
sketch4.addConstraint(Sketcher.Constraint("DistanceX", 0, 3, 1, 3, 30.636))
sketch4.addConstraint(Sketcher.Constraint("DistanceX", -1, 1, 0, 3, 37.2462))
sketch4.addConstraint(Sketcher.Constraint("DistanceY", -1, 1, 0, 3, 31.2924))
pocket3 = body.newObject("PartDesign::Pocket", "Pocket002")
pocket3.Profile = sketch4
pocket3.Type = "ThroughAll"
pocket3.Reversed = True

# Sketch on XZ plane
sketch5 = body.newObject("Sketcher::SketchObject", "Sketch004")
sketch5.AttachmentSupport = (doc.getObject("XZ_Plane"), [""])
sketch5.MapMode = "FlatFace"
sketch5.AttachmentOffset = App.Placement(App.Vector(0, 0, -2.66), App.Rotation())
sketch5.addGeometry(Part.Circle(App.Vector(-74.0992, -54.7651, 0), App.Vector(0, 0, 1), 3.3), False)
sketch5.addGeometry(Part.Circle(App.Vector(-55.0073, -73.8569, 0), App.Vector(0, 0, 1), 3.3), False)
sketch5.addGeometry(Part.Circle(App.Vector(-55.0073, -35.6732, 0), App.Vector(0, 0, 1), 3.3), False)
sketch5.addGeometry(Part.Circle(App.Vector(-35.9154, -54.7651, 0), App.Vector(0, 0, 1), 3.3), False)
sketch5.addConstraint(Sketcher.Constraint("Equal", 0, 1))
sketch5.addConstraint(Sketcher.Constraint("Equal", 1, 2))
sketch5.addConstraint(Sketcher.Constraint("Equal", 2, 3))
sketch5.addConstraint(Sketcher.Constraint("Horizontal", 0, 3, 3, 3))
sketch5.addConstraint(Sketcher.Constraint("Vertical", 1, 3, 2, 3))
sketch5.addConstraint(Sketcher.Constraint("Diameter", 0, 6.6))
sketch5.addConstraint(Sketcher.Constraint("DistanceY", 0, 3, -1, 1, 54.765))
sketch5.addConstraint(Sketcher.Constraint("DistanceY", 1, 3, -1, 1, 73.857))
sketch5.addConstraint(Sketcher.Constraint("DistanceX", 0, 3, 1, 3, 19.092))
sketch5.addConstraint(Sketcher.Constraint("DistanceY", 0, 3, 2, 3, 19.092))
sketch5.addConstraint(Sketcher.Constraint("DistanceX", 1, 3, 3, 3, 19.092))
sketch5.addConstraint(Sketcher.Constraint("DistanceX", 0, 3, -1, 1, 74.0992))
pocket4 = body.newObject("PartDesign::Pocket", "Pocket003")
pocket4.Profile = sketch5
pocket4.Type = "ThroughAll"
pocket4.Reversed = True

# Sketch on XZ plane
sketch6 = body.newObject("Sketcher::SketchObject", "Sketch005")
sketch6.AttachmentSupport = (doc.getObject("XZ_Plane"), [""])
sketch6.MapMode = "FlatFace"
sketch6.AttachmentOffset = App.Placement(App.Vector(0, 0, -2.66), App.Rotation())
sketch6.addGeometry(Part.Circle(App.Vector(41.9507, -154.9241, 0), App.Vector(0, 0, 1), 41.494), False)
sketch6.addGeometry(Part.Circle(App.Vector(49.1515, -117.5129, 0), App.Vector(0, 0, 1), 1.65), False)
sketch6.addGeometry(Part.Circle(App.Vector(3.9014, -156.8484, 0), App.Vector(0, 0, 1), 1.65), False)
sketch6.addGeometry(Part.Circle(App.Vector(34.7499, -192.3354, 0), App.Vector(0, 0, 1), 1.65), False)
sketch6.addGeometry(Part.Circle(App.Vector(80, -152.9999, 0), App.Vector(0, 0, 1), 1.65), False)
sketch6.addGeometry(Part.Circle(App.Vector(-37.8224, -4.5736, 0), App.Vector(0, 0, 1), 3.3), False)
sketch6.addGeometry(Part.Circle(App.Vector(-4.5736, -37.8224, 0), App.Vector(0, 0, 1), 3.3), False)
sketch6.addGeometry(Part.Circle(App.Vector(4.5736, 37.8224, 0), App.Vector(0, 0, 1), 3.3), False)
sketch6.addGeometry(Part.Circle(App.Vector(37.8224, 4.5736, 0), App.Vector(0, 0, 1), 3.3), False)
sketch6.addGeometry(Part.Circle(App.Vector(16, 49.72, 0), App.Vector(0, 0, 1), 3.3), False)
sketch6.addConstraint(Sketcher.Constraint("Equal", 1, 2))
sketch6.addConstraint(Sketcher.Constraint("Equal", 2, 3))
sketch6.addConstraint(Sketcher.Constraint("Equal", 3, 4))
sketch6.addConstraint(Sketcher.Constraint("Equal", 5, 6))
sketch6.addConstraint(Sketcher.Constraint("Equal", 6, 7))
sketch6.addConstraint(Sketcher.Constraint("Equal", 7, 8))
sketch6.addConstraint(Sketcher.Constraint("Equal", 8, 9))
sketch6.addConstraint(Sketcher.Constraint("Symmetric", 6, 3, 7, 3, -1, 1))
sketch6.addConstraint(Sketcher.Constraint("Symmetric", 5, 3, 8, 3, -1, 1))
sketch6.addConstraint(Sketcher.Constraint("Diameter", 1, 3.3))
sketch6.addConstraint(Sketcher.Constraint("Diameter", 5, 6.6))
sketch6.addConstraint(Sketcher.Constraint("Diameter", 0, 82.988))
sketch6.addConstraint(Sketcher.Constraint("DistanceX", -1, 1, 4, 3, 80.0))
sketch6.addConstraint(Sketcher.Constraint("DistanceY", 4, 3, -1, 1, 153.0))
sketch6.addConstraint(Sketcher.Constraint("DistanceX", -1, 1, 9, 3, 16.0))
sketch6.addConstraint(Sketcher.Constraint("DistanceX", -1, 1, 3, 3, 34.75))
sketch6.addConstraint(Sketcher.Constraint("DistanceY", -1, 1, 9, 3, 49.72))
sketch6.addConstraint(Sketcher.Constraint("DistanceX", 2, 3, 1, 3, 45.25))
sketch6.addConstraint(Sketcher.Constraint("DistanceY", 0, 3, -1, 1, 154.924))
sketch6.addConstraint(Sketcher.Constraint("DistanceY", 1, 3, -1, 1, 117.513))
sketch6.addConstraint(Sketcher.Constraint("DistanceY", 3, 3, 2, 3, 35.487))
sketch6.addConstraint(Sketcher.Constraint("DistanceX", 5, 3, 1, 3, 86.974))
sketch6.addConstraint(Sketcher.Constraint("DistanceX", 5, 3, 0, 3, 79.773))
sketch6.addConstraint(Sketcher.Constraint("DistanceX", 6, 3, 1, 3, 53.725))
sketch6.addConstraint(Sketcher.Constraint("DistanceY", 2, 3, 6, 3, 119.026))
sketch6.addConstraint(Sketcher.Constraint("DistanceX", 5, 3, 7, 3, 42.396))
sketch6.addConstraint(Sketcher.Constraint("DistanceY", 5, 3, 7, 3, 42.396))
sketch6.addConstraint(Sketcher.Constraint("DistanceY", 2, 3, -1, 1, 156.8484))
pocket5 = body.newObject("PartDesign::Pocket", "Pocket004")
pocket5.Profile = sketch6
pocket5.Type = "ThroughAll"
pocket5.Reversed = True

# Sketch on XZ plane
sketch7 = body.newObject("Sketcher::SketchObject", "Sketch006")
sketch7.AttachmentSupport = (doc.getObject("XZ_Plane"), [""])
sketch7.MapMode = "FlatFace"
sketch7.AttachmentOffset = App.Placement(App.Vector(0, 0, -2.66), App.Rotation())
sketch7.addGeometry(Part.Circle(App.Vector(77.7227, -36.2927, 0), App.Vector(0, 0, 1), 3.25), False)
sketch7.addGeometry(Part.Circle(App.Vector(36.2927, -77.7227, 0), App.Vector(0, 0, 1), 3.25), False)
sketch7.addConstraint(Sketcher.Constraint("Equal", 0, 1))
sketch7.addConstraint(Sketcher.Constraint("Diameter", 0, 6.5))
sketch7.addConstraint(Sketcher.Constraint("DistanceX", 1, 3, 0, 3, 41.43))
sketch7.addConstraint(Sketcher.Constraint("DistanceY", 1, 3, 0, 3, 41.43))
sketch7.addConstraint(Sketcher.Constraint("DistanceX", -1, 1, 0, 3, 77.7227))
sketch7.addConstraint(Sketcher.Constraint("DistanceY", 0, 3, -1, 1, 36.2927))
doc.recompute()
hole = body.newObject("PartDesign::Hole", "Hole")
hole.Profile = sketch7
hole.ThreadType = "None"
hole.Diameter = 6.5
hole.DepthType = "ThroughAll"
hole.Reversed = True

# Sketch on XZ plane
sketch8 = body.newObject("Sketcher::SketchObject", "Sketch007")
sketch8.AttachmentSupport = (doc.getObject("XZ_Plane"), [""])
sketch8.MapMode = "FlatFace"
sketch8.AttachmentOffset = App.Placement(App.Vector(0, 0, -2.66), App.Rotation())
sketch8.addGeometry(Part.Circle(App.Vector(32.5976, -11.243, 0), App.Vector(0, 0, 1), 3.25), False)
sketch8.addGeometry(Part.Circle(App.Vector(-11.243, 32.5976, 0), App.Vector(0, 0, 1), 3.25), False)
sketch8.addGeometry(Part.Circle(App.Vector(-32.5976, 11.243, 0), App.Vector(0, 0, 1), 3.25), False)
sketch8.addGeometry(Part.Circle(App.Vector(11.243, -32.5976, 0), App.Vector(0, 0, 1), 3.25), False)
sketch8.addConstraint(Sketcher.Constraint("Equal", 0, 1))
sketch8.addConstraint(Sketcher.Constraint("Equal", 1, 2))
sketch8.addConstraint(Sketcher.Constraint("Equal", 2, 3))
sketch8.addConstraint(Sketcher.Constraint("Symmetric", 0, 3, 2, 3, -1, 1))
sketch8.addConstraint(Sketcher.Constraint("Symmetric", 1, 3, 3, 3, -1, 1))
sketch8.addConstraint(Sketcher.Constraint("Diameter", 0, 6.5))
sketch8.addConstraint(Sketcher.Constraint("DistanceY", 0, 3, -1, 1, 11.243))
sketch8.addConstraint(Sketcher.Constraint("DistanceX", 1, 3, -1, 1, 11.243))
sketch8.addConstraint(Sketcher.Constraint("DistanceX", -1, 1, 0, 3, 32.5976))
sketch8.addConstraint(Sketcher.Constraint("DistanceY", -1, 1, 1, 3, 32.5976))
doc.recompute()
hole2 = body.newObject("PartDesign::Hole", "Hole001")
hole2.Profile = sketch8
hole2.ThreadType = "None"
hole2.Diameter = 6.5
hole2.DepthType = "ThroughAll"
hole2.Reversed = True

doc.recompute()
